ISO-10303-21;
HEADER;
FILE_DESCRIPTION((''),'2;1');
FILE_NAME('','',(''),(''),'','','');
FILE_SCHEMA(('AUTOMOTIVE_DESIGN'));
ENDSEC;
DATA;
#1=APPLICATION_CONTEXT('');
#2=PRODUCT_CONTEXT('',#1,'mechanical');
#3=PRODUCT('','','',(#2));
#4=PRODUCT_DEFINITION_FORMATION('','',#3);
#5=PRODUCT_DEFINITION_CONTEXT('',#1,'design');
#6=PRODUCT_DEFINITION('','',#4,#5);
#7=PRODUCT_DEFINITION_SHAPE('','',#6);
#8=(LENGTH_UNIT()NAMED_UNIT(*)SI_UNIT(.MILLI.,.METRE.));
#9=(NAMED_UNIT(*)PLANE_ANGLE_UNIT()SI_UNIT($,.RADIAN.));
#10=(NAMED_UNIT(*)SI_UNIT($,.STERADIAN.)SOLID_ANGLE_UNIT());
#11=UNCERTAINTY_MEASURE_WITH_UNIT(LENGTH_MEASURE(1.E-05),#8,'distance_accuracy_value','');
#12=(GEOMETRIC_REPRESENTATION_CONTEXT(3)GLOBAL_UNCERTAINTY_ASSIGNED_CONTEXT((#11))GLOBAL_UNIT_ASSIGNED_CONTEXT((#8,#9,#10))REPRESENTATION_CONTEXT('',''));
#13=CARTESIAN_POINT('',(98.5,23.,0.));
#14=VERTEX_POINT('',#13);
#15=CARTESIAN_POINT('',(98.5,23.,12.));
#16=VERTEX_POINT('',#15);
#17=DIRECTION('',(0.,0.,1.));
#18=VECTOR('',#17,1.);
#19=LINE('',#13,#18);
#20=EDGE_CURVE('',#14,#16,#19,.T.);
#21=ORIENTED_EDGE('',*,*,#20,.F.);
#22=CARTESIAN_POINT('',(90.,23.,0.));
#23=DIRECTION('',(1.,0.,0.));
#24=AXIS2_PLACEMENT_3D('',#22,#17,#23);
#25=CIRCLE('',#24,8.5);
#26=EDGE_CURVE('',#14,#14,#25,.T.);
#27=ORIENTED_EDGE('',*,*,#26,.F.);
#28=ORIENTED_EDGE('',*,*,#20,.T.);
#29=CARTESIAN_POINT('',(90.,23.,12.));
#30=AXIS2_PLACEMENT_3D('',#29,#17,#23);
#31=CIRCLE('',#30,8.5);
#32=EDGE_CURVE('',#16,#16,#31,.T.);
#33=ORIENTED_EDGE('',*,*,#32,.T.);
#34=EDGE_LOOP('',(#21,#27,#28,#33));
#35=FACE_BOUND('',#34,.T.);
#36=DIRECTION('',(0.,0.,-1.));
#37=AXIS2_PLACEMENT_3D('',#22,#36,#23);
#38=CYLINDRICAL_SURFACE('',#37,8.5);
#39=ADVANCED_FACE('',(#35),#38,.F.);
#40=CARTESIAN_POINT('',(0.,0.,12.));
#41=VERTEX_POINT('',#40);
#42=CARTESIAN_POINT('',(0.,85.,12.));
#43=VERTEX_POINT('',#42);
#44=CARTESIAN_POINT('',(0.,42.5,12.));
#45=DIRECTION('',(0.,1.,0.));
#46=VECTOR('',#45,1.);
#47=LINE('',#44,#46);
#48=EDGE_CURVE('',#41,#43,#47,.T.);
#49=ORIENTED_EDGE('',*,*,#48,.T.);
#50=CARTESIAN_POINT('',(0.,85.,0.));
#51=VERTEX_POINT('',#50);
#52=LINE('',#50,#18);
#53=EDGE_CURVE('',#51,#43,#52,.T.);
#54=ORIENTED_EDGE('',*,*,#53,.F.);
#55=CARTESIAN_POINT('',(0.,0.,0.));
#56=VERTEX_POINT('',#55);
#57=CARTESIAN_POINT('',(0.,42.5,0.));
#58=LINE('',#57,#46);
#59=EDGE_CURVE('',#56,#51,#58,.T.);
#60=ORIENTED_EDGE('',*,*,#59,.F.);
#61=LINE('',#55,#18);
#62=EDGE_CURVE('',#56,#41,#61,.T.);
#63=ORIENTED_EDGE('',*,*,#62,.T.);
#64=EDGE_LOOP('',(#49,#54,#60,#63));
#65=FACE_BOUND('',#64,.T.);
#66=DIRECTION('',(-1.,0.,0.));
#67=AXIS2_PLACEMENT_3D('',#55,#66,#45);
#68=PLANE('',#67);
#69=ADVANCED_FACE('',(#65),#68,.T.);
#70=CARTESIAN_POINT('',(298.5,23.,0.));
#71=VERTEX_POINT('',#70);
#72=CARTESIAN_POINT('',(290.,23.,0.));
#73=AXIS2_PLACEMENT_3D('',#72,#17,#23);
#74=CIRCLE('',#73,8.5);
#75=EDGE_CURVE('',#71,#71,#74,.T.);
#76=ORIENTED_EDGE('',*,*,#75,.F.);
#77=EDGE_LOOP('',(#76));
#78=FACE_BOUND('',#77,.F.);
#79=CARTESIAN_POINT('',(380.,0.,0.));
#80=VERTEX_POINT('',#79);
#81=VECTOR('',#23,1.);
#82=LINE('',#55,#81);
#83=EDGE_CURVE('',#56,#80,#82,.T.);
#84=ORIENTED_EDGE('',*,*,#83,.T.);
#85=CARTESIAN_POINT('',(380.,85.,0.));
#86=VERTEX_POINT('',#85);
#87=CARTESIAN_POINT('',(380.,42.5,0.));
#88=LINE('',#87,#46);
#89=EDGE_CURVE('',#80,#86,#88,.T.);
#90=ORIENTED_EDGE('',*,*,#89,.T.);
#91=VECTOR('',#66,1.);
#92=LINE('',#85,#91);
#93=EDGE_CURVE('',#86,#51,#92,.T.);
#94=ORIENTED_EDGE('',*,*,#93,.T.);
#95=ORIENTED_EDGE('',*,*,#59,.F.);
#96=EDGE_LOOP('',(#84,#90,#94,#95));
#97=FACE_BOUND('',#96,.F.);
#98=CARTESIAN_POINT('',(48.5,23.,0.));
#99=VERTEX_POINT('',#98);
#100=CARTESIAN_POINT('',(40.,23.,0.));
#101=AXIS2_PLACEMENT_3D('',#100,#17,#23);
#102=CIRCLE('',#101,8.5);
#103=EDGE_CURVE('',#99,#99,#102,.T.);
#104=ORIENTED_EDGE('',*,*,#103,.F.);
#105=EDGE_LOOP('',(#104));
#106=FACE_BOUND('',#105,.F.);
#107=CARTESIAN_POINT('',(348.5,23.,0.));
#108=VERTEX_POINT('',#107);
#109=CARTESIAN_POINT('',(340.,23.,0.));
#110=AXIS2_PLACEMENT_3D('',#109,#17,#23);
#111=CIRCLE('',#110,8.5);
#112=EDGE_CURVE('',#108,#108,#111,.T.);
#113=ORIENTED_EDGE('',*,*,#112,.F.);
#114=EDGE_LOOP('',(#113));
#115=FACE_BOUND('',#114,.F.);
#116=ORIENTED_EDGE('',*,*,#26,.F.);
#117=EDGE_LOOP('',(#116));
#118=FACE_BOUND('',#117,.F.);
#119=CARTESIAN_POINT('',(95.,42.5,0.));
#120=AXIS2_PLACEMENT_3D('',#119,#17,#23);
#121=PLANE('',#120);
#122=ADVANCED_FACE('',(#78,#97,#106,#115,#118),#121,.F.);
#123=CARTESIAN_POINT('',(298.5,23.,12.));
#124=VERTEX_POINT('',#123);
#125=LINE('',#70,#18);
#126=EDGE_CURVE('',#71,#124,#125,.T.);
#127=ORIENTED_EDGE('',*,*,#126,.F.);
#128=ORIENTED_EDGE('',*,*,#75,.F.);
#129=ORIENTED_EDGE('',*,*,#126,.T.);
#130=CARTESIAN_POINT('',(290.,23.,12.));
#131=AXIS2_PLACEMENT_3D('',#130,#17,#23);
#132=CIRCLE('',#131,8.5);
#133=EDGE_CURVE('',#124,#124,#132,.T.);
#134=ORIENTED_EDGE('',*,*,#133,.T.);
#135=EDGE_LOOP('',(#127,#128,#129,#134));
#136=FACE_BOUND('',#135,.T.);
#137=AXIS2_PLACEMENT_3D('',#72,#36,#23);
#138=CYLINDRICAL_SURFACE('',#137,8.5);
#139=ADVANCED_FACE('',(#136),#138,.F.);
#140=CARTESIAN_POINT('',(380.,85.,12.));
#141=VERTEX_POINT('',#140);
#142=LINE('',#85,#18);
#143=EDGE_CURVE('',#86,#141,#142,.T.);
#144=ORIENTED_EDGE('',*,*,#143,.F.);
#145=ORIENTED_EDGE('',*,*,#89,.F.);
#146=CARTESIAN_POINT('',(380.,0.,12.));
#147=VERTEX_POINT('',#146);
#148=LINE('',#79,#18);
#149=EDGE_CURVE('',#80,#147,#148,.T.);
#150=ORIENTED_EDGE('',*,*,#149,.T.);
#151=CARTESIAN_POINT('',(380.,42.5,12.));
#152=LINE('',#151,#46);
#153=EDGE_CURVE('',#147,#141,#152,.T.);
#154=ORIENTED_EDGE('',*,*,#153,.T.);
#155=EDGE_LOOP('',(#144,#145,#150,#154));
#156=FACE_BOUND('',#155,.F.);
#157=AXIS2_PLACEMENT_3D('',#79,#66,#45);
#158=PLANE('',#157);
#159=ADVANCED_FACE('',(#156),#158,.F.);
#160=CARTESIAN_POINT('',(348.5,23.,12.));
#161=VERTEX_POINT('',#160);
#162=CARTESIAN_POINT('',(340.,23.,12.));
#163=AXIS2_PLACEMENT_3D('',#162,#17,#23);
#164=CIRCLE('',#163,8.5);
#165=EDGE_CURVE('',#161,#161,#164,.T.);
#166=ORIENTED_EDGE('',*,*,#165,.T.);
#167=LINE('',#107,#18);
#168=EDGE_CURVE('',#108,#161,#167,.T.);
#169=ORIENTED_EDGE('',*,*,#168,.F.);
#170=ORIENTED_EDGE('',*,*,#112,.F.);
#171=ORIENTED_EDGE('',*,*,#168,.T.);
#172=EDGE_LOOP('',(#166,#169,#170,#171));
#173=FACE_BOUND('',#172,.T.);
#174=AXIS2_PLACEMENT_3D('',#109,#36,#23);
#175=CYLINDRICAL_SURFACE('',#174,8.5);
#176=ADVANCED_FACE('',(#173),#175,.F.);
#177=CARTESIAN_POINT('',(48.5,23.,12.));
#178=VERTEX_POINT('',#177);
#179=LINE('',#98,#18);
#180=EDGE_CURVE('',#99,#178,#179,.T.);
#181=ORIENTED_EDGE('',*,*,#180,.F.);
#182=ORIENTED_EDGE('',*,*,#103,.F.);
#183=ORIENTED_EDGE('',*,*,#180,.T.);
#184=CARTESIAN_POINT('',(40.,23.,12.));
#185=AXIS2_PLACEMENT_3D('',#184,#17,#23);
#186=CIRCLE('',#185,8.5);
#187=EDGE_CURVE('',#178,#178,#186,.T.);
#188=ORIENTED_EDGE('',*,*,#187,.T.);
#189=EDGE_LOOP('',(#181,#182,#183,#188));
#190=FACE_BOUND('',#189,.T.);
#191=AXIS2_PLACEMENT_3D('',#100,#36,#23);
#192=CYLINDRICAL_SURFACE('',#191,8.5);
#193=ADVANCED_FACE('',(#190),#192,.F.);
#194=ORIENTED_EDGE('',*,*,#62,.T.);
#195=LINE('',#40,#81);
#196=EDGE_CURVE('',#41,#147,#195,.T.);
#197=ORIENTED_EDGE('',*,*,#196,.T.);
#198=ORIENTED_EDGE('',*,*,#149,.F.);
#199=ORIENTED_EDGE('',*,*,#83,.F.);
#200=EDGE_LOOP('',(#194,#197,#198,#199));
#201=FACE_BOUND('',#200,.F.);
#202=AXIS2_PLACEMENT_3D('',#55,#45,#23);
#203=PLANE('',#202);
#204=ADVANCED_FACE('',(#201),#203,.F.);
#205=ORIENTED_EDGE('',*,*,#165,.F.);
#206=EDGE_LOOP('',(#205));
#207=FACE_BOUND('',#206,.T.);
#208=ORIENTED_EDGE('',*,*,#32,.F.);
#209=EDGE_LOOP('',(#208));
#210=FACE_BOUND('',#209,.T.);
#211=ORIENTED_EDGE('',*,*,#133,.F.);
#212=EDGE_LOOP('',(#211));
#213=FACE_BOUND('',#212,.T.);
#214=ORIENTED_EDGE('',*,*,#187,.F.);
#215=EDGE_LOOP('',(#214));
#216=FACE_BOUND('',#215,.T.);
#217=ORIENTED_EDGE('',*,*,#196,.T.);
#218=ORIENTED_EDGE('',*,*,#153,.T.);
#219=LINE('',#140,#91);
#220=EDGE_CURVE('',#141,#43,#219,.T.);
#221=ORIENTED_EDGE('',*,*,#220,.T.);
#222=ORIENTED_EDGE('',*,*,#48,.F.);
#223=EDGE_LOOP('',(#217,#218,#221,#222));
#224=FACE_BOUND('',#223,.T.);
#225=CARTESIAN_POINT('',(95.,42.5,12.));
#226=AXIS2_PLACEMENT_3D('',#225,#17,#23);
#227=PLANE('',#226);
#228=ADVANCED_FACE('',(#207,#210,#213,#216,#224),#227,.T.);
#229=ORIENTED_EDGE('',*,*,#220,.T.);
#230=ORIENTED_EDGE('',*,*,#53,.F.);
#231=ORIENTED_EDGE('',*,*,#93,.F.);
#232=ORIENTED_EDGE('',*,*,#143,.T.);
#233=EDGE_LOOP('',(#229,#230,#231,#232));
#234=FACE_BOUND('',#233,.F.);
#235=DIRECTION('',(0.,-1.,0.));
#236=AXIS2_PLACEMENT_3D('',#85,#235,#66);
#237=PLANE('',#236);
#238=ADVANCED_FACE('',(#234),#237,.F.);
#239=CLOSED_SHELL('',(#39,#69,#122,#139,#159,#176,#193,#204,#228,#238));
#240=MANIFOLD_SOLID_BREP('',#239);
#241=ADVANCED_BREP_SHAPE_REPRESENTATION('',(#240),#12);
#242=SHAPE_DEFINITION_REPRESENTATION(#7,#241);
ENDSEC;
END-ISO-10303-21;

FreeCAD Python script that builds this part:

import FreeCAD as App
import Part
import Sketcher


def add_polygon(sketch, points):
    """Adds a closed chain of lines whose ends are joined by coincident constraints."""
    first, n = sketch.GeometryCount, len(points)
    for a, b in zip(points, points[1:] + points[:1]):
        sketch.addGeometry(Part.LineSegment(App.Vector(*a, 0), App.Vector(*b, 0)), False)
    for i in range(n):
        sketch.addConstraint(Sketcher.Constraint("Coincident", first + i, 2, first + (i + 1) % n, 1))

doc = App.newDocument("Part")
body = doc.addObject("PartDesign::Body", "Body")

# Sketch on XY plane
sketch1 = doc.addObject("Sketcher::SketchObject", "Sketch")
body.addObject(sketch1)
sketch1.AttachmentSupport = (doc.XY_Plane, [""])
sketch1.MapMode = "FlatFace"
add_polygon(sketch1, [(0, 85), (0, 0), (380, 0), (380, 85)])  # lines 0-3
sketch1.addGeometry(Part.Circle(App.Vector(40, 23, 0), App.Vector(0, 0, 1), 8), False)  # 4
sketch1.addGeometry(Part.Circle(App.Vector(90, 23, 0), App.Vector(0, 0, 1), 8), False)  # 5
sketch1.addGeometry(Part.Circle(App.Vector(290, 23, 0), App.Vector(0, 0, 1), 8), False)  # 6
sketch1.addGeometry(Part.Circle(App.Vector(340, 23, 0), App.Vector(0, 0, 1), 8), False)  # 7
sketch1.addConstraint(Sketcher.Constraint("Vertical", 0))
sketch1.addConstraint(Sketcher.Constraint("Horizontal", 1))
sketch1.addConstraint(Sketcher.Constraint("Vertical", 2))
sketch1.addConstraint(Sketcher.Constraint("Horizontal", 3))
sketch1.addConstraint(Sketcher.Constraint("Coincident", 0, 2, -1, 1))
sketch1.addConstraint(Sketcher.Constraint("Equal", 4, 5))
sketch1.addConstraint(Sketcher.Constraint("Equal", 5, 6))
sketch1.addConstraint(Sketcher.Constraint("Equal", 6, 7))
sketch1.addConstraint(Sketcher.Constraint("Horizontal", 4, 3, 5, 3))
sketch1.addConstraint(Sketcher.Constraint("Horizontal", 5, 3, 6, 3))
sketch1.addConstraint(Sketcher.Constraint("Horizontal", 6, 3, 7, 3))
sketch1.addConstraint(Sketcher.Constraint("Diameter", 4, 17.0))
sketch1.addConstraint(Sketcher.Constraint("DistanceX", 1, 1, 1, 2, 380.0))
sketch1.addConstraint(Sketcher.Constraint("DistanceY", 0, 2, 0, 1, 85.0))
sketch1.addConstraint(Sketcher.Constraint("DistanceX", -1, 1, 4, 3, 40.0))
sketch1.addConstraint(Sketcher.Constraint("DistanceY", -1, 1, 4, 3, 23.0))
sketch1.addConstraint(Sketcher.Constraint("DistanceX", -1, 1, 5, 3, 90.0))
sketch1.addConstraint(Sketcher.Constraint("DistanceX", -1, 1, 6, 3, 290.0))
sketch1.addConstraint(Sketcher.Constraint("DistanceX", -1, 1, 7, 3, 340.0))
pad1 = doc.addObject("PartDesign::Pad", "Pad")
body.addObject(pad1)
pad1.Profile = sketch1
pad1.Length = 12

doc.recompute()
